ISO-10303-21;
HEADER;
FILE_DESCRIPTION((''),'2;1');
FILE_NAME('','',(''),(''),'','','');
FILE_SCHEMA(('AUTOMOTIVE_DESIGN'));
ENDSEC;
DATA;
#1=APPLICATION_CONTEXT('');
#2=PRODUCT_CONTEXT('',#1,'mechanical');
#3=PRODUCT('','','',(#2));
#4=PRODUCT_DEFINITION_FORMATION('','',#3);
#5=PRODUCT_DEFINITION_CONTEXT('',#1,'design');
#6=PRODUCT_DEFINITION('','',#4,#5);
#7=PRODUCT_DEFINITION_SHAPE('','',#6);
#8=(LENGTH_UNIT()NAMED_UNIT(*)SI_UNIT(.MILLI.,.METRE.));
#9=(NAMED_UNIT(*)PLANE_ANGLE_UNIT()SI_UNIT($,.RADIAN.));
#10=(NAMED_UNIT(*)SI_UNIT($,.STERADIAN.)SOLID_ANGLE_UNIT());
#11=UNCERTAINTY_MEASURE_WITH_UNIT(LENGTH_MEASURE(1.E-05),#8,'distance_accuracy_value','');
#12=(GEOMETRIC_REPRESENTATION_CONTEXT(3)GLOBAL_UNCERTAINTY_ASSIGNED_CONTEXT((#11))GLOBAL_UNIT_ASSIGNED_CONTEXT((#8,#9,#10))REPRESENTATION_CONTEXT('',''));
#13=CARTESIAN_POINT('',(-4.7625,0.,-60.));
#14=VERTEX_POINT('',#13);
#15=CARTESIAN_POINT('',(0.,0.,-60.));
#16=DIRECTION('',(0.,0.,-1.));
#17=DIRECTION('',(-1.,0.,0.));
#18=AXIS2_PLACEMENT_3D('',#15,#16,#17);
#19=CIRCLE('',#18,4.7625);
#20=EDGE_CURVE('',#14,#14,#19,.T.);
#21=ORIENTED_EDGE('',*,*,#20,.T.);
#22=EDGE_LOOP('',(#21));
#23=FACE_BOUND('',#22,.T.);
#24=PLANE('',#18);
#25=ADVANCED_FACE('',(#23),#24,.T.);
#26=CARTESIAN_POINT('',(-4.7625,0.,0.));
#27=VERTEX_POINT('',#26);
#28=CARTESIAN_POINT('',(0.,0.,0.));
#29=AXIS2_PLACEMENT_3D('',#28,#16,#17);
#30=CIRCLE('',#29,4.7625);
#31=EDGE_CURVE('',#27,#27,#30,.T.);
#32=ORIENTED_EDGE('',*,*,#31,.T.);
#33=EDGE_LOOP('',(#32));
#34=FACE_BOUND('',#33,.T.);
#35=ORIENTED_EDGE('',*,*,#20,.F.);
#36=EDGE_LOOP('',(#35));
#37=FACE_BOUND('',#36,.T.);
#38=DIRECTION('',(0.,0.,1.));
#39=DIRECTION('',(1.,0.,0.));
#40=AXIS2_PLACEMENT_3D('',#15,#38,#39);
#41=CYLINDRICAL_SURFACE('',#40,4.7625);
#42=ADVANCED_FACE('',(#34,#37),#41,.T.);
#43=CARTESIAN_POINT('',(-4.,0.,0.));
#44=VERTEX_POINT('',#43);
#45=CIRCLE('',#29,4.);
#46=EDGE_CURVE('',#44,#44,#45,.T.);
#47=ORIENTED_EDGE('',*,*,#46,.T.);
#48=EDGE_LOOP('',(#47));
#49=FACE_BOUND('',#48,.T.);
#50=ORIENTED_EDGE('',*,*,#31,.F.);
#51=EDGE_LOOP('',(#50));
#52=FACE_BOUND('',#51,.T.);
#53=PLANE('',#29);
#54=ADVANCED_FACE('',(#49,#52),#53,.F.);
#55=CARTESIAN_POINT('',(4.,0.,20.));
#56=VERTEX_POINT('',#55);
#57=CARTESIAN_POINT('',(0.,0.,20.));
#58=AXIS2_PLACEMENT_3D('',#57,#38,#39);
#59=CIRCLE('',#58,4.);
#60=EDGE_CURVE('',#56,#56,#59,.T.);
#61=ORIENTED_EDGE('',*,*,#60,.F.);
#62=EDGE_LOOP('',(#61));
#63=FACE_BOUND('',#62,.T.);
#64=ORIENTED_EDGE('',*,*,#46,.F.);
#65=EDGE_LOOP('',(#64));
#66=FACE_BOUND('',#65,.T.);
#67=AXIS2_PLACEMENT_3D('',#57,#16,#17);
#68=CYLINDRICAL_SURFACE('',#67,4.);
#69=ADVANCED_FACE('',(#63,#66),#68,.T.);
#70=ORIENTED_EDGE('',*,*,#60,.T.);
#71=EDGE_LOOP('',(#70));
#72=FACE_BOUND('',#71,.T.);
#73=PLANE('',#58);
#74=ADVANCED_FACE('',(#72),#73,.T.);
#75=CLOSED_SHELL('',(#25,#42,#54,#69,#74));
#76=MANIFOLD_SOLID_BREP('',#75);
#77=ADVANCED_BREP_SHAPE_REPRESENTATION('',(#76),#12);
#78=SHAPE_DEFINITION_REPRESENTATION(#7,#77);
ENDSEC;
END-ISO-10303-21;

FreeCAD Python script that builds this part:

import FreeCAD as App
import Part
import Sketcher

V = App.Vector

doc = App.newDocument("Part")
body = doc.addObject("PartDesign::Body", "Body")

# Sketch on XY plane
sketch1 = body.newObject("Sketcher::SketchObject", "Sketch")
sketch1.AttachmentSupport = (doc.getObject("XY_Plane"), [""])
sketch1.MapMode = "FlatFace"
sketch1.addGeometry(Part.Circle(V(0, 0, 0), V(0, 0, 1), 4), False)
sketch1.addConstraint(Sketcher.Constraint("Coincident", 0, 3, -1, 1))
sketch1.addConstraint(Sketcher.Constraint("Diameter", 0, 8.0))
pad1 = body.newObject("PartDesign::Pad", "Pad")
pad1.Profile = sketch1
pad1.Length = 20

# Sketch on XY plane
sketch2 = body.newObject("Sketcher::SketchObject", "Sketch001")
sketch2.AttachmentSupport = (doc.getObject("XY_Plane"), [""])
sketch2.MapMode = "FlatFace"
sketch2.addGeometry(Part.Circle(V(0, 0, 0), V(0, 0, 1), 4.8), False)
sketch2.addConstraint(Sketcher.Constraint("Coincident", 0, 3, -1, 1))
sketch2.addConstraint(Sketcher.Constraint("Diameter", 0, 9.525))
pad2 = body.newObject("PartDesign::Pad", "Pad001")
pad2.Profile = sketch2
pad2.Length = 60
pad2.Reversed = True

doc.recompute()
